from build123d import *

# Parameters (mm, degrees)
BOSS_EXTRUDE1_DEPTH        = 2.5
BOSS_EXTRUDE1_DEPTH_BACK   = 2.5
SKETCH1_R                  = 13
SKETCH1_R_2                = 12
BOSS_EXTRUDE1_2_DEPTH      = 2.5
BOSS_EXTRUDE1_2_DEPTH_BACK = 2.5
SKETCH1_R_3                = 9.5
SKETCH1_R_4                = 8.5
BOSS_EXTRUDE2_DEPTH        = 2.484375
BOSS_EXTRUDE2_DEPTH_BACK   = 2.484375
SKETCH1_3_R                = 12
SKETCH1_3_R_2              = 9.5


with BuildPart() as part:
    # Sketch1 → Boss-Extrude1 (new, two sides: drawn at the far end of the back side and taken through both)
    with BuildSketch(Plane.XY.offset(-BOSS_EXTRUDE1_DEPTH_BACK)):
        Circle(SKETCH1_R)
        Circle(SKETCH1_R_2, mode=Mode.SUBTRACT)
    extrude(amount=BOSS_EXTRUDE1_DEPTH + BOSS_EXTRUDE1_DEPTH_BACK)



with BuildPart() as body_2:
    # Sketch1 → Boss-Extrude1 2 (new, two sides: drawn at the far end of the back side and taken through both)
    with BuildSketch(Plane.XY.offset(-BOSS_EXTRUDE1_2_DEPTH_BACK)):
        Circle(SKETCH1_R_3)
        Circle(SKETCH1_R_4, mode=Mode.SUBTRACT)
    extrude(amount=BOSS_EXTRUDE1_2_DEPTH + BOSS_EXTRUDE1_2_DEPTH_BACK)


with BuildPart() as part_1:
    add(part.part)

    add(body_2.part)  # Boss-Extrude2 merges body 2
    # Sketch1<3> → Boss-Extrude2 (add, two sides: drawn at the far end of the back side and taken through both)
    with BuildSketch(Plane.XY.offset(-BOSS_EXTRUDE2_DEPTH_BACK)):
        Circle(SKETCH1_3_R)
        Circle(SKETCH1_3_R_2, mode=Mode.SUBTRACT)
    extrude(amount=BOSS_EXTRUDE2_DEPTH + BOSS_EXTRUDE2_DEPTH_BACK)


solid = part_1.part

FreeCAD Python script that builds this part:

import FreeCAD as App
import Part
import Sketcher

V = App.Vector
Q = App.Units.Quantity

doc = App.newDocument("Part")
body = doc.addObject("PartDesign::Body", "Body")

# Sketch on XY plane
sketch1 = doc.addObject("Sketcher::SketchObject", "Sketch")
body.addObject(sketch1)
sketch1.AttachmentSupport = (doc.XY_Plane, [""])
sketch1.MapMode = "FlatFace"
sketch1.addGeometry(Part.Circle(V(0, 0, 0), V(0, 0, 1), 13), False)
sketch1.addGeometry(Part.Circle(V(0, 0, 0), V(0, 0, 1), 12), False)
sketch1.addConstraint(Sketcher.Constraint("Coincident", 0, 3, -1, 1))
sketch1.addConstraint(Sketcher.Constraint("Coincident", 1, 3, -1, 1))
sketch1.addConstraint(Sketcher.Constraint("Diameter", 0, Q("26 mm")))
sketch1.addConstraint(Sketcher.Constraint("Diameter", 1, Q("24 mm")))
pad1 = doc.addObject("PartDesign::Pad", "Pad")
body.addObject(pad1)
pad1.Profile = sketch1
pad1.Type = "TwoLengths"
pad1.Length = 2.5
pad1.Length2 = 2.5
body2 = doc.addObject("PartDesign::Body", "Body001")

# Sketch on XY plane
sketch2 = doc.addObject("Sketcher::SketchObject", "Sketch001")
body2.addObject(sketch2)
sketch2.AttachmentSupport = (doc.getObject("XY_Plane001"), [""])
sketch2.MapMode = "FlatFace"
sketch2.addGeometry(Part.Circle(V(0, 0, 0), V(0, 0, 1), 10), False)
sketch2.addGeometry(Part.Circle(V(0, 0, 0), V(0, 0, 1), 8), False)
sketch2.addConstraint(Sketcher.Constraint("Coincident", 0, 3, -1, 1))
sketch2.addConstraint(Sketcher.Constraint("Coincident", 1, 3, -1, 1))
sketch2.addConstraint(Sketcher.Constraint("Diameter", 0, Q("19 mm")))
sketch2.addConstraint(Sketcher.Constraint("Diameter", 1, Q("17 mm")))
pad2 = doc.addObject("PartDesign::Pad", "Pad001")
body2.addObject(pad2)
pad2.Profile = sketch2
pad2.Type = "TwoLengths"
pad2.Length = 2.5
pad2.Length2 = 2.5
body.AllowCompound = True
doc.recompute()

boolean = doc.addObject("PartDesign::Boolean", "Boolean")
body.addObject(boolean)
boolean.Type = "Fuse"
boolean.addObjects([body2])

# Sketch on XY plane
sketch3 = doc.addObject("Sketcher::SketchObject", "Sketch002")
body.addObject(sketch3)
sketch3.AttachmentSupport = (doc.XY_Plane, [""])
sketch3.MapMode = "FlatFace"
sketch3.addGeometry(Part.Circle(V(0, 0, 0), V(0, 0, 1), 12), False)
sketch3.addGeometry(Part.Circle(V(0, 0, 0), V(0, 0, 1), 10), False)
sketch3.addConstraint(Sketcher.Constraint("Coincident", 0, 3, -1, 1))
sketch3.addConstraint(Sketcher.Constraint("Coincident", 1, 3, -1, 1))
sketch3.addConstraint(Sketcher.Constraint("Diameter", 0, Q("24 mm")))
sketch3.addConstraint(Sketcher.Constraint("Diameter", 1, Q("19 mm")))
pad3 = doc.addObject("PartDesign::Pad", "Pad002")
body.addObject(pad3)
pad3.Profile = sketch3
pad3.Type = "TwoLengths"
pad3.Length = 2.484375
pad3.Length2 = 2.484375

doc.recompute()
